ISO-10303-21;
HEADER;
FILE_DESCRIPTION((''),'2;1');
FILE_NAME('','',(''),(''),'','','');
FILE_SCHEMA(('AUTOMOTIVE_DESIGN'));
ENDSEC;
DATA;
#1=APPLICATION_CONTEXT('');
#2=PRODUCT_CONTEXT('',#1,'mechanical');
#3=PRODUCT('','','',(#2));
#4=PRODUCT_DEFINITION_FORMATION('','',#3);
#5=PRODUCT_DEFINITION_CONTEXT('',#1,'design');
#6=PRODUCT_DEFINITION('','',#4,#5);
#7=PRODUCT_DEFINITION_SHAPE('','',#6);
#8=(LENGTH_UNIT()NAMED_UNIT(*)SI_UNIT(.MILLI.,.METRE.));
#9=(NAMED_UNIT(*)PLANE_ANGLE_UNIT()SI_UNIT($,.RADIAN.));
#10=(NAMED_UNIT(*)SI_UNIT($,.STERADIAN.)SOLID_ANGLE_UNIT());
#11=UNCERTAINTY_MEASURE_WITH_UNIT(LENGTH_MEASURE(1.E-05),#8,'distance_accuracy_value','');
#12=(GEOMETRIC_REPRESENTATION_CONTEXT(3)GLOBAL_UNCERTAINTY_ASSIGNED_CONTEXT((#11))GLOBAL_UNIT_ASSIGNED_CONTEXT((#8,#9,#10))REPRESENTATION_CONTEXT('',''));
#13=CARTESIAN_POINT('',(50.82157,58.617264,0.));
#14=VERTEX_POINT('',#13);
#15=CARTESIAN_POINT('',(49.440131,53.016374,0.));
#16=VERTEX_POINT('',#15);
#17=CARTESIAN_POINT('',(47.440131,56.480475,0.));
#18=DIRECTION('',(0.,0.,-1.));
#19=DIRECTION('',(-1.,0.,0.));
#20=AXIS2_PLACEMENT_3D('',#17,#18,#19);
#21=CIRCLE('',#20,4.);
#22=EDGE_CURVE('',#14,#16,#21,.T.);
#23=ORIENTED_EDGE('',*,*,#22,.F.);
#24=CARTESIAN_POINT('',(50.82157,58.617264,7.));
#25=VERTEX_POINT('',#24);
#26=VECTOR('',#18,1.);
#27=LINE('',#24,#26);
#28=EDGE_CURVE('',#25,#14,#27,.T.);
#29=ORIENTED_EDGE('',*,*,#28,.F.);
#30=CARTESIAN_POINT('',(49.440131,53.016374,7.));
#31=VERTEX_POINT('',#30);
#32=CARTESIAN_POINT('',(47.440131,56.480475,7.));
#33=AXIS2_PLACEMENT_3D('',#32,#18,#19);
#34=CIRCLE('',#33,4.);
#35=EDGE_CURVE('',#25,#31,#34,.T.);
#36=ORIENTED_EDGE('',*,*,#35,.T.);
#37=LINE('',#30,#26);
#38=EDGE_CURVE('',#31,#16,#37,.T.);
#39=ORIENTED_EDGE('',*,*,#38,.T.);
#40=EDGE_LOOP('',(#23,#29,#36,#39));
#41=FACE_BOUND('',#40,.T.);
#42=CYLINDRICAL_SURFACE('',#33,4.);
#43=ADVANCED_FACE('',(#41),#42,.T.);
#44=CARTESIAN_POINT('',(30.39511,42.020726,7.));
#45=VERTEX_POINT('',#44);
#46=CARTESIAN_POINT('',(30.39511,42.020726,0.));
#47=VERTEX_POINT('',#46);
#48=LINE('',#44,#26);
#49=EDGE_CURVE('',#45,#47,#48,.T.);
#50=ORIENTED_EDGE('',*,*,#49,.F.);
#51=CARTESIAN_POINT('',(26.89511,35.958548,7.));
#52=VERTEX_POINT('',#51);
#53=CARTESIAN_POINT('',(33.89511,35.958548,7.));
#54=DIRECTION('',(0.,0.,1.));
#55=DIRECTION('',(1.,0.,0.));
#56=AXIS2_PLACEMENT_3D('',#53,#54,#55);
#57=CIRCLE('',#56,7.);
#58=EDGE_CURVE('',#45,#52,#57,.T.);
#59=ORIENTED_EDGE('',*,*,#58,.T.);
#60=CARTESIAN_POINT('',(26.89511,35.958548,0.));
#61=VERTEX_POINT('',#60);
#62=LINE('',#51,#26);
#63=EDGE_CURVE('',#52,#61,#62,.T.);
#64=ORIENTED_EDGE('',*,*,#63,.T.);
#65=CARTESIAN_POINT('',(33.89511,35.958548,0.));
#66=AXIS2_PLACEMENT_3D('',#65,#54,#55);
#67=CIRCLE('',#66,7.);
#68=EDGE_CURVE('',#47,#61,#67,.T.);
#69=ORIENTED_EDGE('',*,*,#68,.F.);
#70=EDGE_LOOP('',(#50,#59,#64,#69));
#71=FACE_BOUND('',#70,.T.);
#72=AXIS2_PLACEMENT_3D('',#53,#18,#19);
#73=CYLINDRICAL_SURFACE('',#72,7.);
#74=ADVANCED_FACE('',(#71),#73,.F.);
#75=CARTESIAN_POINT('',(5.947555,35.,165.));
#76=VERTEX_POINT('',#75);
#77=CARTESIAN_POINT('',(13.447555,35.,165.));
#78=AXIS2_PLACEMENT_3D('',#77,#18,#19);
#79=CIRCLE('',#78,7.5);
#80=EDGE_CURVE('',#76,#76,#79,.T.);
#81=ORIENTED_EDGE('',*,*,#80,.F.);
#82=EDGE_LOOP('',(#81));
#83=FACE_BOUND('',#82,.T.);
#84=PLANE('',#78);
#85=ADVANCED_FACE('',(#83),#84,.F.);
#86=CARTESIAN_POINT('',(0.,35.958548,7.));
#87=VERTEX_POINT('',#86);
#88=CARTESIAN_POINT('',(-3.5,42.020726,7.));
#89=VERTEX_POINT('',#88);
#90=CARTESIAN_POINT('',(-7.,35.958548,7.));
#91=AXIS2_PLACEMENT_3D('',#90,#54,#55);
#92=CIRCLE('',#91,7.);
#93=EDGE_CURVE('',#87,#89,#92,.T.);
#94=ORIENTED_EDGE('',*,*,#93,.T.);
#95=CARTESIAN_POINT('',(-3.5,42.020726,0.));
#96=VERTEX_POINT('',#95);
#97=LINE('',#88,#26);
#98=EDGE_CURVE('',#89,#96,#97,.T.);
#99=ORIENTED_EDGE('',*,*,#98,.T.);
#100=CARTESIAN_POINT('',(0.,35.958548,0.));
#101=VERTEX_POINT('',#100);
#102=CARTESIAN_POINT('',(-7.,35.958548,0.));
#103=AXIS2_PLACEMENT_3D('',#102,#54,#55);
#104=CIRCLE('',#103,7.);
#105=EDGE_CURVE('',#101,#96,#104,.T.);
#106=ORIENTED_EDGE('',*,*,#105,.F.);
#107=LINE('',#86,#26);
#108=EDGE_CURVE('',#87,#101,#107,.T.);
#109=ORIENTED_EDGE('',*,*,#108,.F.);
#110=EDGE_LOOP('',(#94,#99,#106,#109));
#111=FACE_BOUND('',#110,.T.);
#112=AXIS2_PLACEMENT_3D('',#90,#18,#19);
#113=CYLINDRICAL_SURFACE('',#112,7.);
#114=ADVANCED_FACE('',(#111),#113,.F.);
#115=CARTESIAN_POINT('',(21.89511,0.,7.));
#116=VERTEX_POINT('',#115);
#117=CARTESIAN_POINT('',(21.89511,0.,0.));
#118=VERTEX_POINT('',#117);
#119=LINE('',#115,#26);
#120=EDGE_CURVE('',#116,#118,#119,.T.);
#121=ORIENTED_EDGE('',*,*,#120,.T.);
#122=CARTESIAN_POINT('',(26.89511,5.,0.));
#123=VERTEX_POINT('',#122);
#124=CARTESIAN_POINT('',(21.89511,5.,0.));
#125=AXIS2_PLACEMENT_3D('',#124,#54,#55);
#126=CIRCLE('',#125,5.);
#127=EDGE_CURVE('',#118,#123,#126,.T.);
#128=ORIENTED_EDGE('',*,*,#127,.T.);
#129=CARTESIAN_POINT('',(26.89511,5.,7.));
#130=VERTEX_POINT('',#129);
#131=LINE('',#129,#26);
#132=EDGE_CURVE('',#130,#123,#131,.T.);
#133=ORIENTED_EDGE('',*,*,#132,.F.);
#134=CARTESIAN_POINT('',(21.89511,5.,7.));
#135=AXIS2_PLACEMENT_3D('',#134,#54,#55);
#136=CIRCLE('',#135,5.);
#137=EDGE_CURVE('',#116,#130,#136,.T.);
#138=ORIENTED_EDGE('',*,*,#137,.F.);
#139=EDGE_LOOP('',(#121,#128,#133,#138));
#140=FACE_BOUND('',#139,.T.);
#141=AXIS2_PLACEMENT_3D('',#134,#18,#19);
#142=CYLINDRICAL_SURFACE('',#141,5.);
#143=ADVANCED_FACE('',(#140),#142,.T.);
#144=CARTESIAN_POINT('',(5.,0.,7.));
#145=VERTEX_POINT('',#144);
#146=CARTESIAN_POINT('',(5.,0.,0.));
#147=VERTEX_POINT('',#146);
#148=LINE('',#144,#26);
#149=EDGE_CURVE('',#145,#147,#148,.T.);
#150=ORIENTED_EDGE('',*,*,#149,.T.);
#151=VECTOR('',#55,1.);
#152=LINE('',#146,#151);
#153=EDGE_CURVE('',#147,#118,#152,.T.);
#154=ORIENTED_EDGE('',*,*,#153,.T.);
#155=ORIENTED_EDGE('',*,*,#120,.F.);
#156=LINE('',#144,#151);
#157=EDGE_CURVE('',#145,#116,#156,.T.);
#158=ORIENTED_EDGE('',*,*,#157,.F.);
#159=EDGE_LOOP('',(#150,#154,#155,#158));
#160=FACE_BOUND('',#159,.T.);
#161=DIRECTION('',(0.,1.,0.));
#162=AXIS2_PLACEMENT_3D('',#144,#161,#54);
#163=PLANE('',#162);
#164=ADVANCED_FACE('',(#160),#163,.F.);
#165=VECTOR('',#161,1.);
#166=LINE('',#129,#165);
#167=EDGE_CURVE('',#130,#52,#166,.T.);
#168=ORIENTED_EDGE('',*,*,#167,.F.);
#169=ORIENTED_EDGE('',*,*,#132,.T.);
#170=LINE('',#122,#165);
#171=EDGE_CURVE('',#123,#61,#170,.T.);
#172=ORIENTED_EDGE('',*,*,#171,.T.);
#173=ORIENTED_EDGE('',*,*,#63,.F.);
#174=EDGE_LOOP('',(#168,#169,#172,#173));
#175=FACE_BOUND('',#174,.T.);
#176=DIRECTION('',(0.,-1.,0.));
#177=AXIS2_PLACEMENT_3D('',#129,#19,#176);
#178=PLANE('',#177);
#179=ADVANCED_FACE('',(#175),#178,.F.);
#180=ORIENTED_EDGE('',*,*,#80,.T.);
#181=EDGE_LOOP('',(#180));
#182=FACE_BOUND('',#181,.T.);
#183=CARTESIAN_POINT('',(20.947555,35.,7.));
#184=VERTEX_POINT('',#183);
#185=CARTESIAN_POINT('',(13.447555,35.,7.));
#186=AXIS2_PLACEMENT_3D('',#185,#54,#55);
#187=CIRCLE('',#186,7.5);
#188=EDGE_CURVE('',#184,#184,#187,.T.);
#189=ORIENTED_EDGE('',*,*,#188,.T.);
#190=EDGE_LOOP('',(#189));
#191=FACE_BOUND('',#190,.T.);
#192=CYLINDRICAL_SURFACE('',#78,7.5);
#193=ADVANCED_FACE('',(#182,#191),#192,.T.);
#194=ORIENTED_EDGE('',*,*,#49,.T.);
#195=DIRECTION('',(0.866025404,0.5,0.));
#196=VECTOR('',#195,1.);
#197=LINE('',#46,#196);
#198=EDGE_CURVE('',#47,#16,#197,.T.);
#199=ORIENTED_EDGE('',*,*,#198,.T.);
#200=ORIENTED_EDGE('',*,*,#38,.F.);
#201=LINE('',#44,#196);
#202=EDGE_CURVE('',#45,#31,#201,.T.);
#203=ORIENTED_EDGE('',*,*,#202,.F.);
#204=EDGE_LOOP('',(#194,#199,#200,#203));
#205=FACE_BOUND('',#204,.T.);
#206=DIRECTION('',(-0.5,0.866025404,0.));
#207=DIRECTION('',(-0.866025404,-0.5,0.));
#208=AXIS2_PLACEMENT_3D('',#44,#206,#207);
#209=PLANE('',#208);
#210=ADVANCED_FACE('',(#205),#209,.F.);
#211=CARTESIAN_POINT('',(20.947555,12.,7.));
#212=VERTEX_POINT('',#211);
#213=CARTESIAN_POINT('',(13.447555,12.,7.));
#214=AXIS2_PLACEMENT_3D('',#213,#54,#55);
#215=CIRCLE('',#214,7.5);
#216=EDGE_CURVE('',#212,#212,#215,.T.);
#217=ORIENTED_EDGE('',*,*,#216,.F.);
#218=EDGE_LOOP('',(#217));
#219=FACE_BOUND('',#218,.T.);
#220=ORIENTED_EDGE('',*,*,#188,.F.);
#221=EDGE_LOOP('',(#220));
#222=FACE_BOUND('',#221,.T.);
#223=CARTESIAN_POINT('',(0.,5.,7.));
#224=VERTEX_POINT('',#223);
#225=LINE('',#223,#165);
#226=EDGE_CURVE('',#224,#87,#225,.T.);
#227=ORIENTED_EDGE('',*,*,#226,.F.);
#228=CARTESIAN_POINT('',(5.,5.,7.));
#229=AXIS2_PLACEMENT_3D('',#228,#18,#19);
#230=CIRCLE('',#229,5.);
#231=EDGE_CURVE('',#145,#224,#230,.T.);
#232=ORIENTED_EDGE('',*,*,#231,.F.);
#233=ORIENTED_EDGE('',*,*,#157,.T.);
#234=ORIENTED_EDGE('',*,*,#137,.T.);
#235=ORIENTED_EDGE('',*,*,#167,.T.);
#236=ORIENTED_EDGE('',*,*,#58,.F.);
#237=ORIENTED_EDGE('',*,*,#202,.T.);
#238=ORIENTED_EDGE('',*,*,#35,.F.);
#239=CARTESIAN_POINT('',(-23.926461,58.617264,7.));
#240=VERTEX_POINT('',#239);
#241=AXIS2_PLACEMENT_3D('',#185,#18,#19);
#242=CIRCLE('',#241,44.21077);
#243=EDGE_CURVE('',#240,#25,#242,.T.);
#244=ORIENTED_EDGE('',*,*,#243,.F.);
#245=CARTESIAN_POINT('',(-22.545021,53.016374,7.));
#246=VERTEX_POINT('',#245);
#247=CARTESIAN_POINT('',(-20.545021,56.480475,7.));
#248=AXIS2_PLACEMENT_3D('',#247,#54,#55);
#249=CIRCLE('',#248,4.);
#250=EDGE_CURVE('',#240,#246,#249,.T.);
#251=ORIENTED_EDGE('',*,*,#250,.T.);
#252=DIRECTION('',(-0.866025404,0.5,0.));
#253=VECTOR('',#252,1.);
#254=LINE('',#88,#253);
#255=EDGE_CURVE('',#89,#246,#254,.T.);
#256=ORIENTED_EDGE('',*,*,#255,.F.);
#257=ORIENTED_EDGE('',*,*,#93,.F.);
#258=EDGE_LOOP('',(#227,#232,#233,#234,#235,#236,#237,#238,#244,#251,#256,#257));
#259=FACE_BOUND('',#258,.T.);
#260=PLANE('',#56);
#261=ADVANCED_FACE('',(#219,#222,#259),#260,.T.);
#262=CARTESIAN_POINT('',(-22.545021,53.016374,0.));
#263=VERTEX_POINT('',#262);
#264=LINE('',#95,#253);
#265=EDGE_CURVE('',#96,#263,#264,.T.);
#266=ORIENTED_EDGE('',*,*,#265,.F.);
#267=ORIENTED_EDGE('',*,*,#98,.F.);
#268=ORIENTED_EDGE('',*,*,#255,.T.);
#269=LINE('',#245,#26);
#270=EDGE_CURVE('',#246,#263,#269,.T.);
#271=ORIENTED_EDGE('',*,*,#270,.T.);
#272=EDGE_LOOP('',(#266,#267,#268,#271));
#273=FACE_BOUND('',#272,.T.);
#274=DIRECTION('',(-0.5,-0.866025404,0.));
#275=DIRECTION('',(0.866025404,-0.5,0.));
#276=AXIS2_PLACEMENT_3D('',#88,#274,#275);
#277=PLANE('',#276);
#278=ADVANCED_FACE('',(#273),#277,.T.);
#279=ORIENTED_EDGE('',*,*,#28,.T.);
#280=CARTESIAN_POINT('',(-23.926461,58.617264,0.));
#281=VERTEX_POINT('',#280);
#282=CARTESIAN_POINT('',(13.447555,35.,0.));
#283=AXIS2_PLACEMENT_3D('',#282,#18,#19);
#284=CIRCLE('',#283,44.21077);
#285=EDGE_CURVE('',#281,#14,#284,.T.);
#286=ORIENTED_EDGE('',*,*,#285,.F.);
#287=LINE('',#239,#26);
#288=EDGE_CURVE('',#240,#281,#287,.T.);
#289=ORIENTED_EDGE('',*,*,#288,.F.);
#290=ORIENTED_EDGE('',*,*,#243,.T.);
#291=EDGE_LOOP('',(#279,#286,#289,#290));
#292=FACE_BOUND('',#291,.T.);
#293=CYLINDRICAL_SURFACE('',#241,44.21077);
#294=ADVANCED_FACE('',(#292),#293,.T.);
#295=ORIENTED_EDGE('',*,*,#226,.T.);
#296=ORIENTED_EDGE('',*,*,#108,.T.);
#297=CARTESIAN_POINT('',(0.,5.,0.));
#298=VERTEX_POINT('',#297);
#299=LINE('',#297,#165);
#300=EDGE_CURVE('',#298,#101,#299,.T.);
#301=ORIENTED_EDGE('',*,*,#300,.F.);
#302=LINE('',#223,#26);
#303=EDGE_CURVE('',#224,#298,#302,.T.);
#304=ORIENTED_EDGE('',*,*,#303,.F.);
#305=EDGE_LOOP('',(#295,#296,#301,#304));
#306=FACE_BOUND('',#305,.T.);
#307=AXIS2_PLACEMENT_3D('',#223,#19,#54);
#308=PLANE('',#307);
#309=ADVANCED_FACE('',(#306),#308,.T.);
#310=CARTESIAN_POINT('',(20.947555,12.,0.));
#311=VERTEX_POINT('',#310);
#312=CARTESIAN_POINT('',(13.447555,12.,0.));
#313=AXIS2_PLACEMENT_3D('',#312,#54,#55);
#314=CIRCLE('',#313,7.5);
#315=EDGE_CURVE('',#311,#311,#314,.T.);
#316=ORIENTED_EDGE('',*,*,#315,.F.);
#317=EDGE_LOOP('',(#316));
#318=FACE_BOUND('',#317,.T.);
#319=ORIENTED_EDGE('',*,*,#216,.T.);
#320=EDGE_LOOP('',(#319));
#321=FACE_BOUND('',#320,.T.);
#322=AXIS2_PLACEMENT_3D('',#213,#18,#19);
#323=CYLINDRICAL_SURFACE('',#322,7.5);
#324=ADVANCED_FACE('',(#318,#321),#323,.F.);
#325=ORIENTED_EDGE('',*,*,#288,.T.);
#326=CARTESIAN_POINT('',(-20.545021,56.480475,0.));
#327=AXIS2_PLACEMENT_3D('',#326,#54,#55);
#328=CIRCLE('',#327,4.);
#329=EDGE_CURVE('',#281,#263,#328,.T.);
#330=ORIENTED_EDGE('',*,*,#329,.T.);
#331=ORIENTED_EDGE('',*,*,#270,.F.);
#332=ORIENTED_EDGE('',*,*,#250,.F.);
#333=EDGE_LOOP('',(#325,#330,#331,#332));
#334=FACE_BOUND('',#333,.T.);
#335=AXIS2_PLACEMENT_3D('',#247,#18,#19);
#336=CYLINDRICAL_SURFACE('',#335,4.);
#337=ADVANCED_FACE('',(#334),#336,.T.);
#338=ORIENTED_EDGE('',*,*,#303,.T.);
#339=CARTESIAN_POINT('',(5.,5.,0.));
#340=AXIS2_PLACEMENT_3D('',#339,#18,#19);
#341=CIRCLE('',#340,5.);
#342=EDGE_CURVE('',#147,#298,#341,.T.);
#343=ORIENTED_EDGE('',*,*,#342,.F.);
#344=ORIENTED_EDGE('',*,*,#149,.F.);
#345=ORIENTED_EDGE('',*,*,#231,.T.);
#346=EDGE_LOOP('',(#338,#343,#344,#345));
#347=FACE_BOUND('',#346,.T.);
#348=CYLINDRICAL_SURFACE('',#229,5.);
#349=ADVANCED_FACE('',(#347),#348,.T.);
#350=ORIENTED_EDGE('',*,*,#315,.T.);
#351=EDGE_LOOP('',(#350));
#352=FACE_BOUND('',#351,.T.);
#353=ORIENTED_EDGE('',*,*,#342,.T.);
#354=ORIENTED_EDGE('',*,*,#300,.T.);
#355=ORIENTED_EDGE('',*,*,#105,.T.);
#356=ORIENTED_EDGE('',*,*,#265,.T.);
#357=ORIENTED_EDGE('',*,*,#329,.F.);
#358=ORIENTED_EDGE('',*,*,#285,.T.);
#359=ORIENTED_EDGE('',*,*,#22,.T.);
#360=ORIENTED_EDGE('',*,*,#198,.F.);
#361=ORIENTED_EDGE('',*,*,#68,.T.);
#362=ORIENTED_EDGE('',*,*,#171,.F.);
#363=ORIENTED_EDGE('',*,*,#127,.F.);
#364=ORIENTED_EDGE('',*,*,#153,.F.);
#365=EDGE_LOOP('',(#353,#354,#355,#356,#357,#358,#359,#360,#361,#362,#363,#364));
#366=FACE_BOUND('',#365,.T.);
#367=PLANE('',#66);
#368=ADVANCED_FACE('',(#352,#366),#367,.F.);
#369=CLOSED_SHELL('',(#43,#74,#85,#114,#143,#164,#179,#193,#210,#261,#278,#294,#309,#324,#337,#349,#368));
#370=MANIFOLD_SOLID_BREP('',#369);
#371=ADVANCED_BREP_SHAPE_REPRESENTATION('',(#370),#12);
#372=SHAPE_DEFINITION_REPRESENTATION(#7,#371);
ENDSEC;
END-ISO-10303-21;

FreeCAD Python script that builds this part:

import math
import FreeCAD as App
import Part
import Sketcher
from FreeCAD import Vector
Q = App.Units.Quantity

doc = App.newDocument("Part")
params = doc.addObject("Spreadsheet::Sheet", "Params")
for row, (alias, value) in enumerate([
    ("sketch1_diameter", "15 mm"),
    ("sketch1_radius", "5 mm"),
    ("sketch1_radius2", "7 mm"),
    ("sketch1_radius3", "4 mm"),
    ("pad1_length", "7 mm"),
    ("sketch2_diameter", "15 mm"),
    ("pad2_length", "165 mm"),
], start=1):
    params.set(f"A{row}", alias)
    params.set(f"B{row}", "=" + value)
    params.setAlias(f"B{row}", alias)

body = doc.addObject("PartDesign::Body", "Body")

sketch1 = doc.addObject("Sketcher::SketchObject", "Sketch")
body.addObject(sketch1)
sketch1.AttachmentSupport = (doc.XY_Plane, [""])
sketch1.MapMode = "FlatFace"
sketch1.addGeometry(Part.LineSegment(Vector(5, 0, 0), Vector(21.89511, 0, 0)), False)
sketch1.addGeometry(Part.ArcOfCircle(Part.Circle(Vector(21.89511, 5, 0), Vector(0, 0, 1), 5), math.radians(-90), math.radians(0)), False)
sketch1.addGeometry(Part.LineSegment(Vector(26.89511, 5, 0), Vector(26.89511, 35.958548, 0)), False)
sketch1.addGeometry(Part.ArcOfCircle(Part.Circle(Vector(33.89511, 35.958548, 0), Vector(0, 0, 1), 7), math.radians(120), math.radians(180)), False)
sketch1.addGeometry(Part.LineSegment(Vector(30.39511, 42.020726, 0), Vector(49.440131, 53.016374, 0)), False)
sketch1.addGeometry(Part.ArcOfCircle(Part.Circle(Vector(47.440131, 56.480475, 0), Vector(0, 0, 1), 4), math.radians(-60), math.radians(32.289475)), False)
sketch1.addGeometry(Part.ArcOfCircle(Part.Circle(Vector(13.447555, 35, 0), Vector(0, 0, 1), 44.21077), math.radians(32.289475), math.radians(147.710525)), False)
sketch1.addGeometry(Part.ArcOfCircle(Part.Circle(Vector(-20.545021, 56.480475, 0), Vector(0, 0, 1), 4), math.radians(147.710525), math.radians(240)), False)
sketch1.addGeometry(Part.LineSegment(Vector(-22.545021, 53.016374, 0), Vector(-3.5, 42.020726, 0)), False)
sketch1.addGeometry(Part.ArcOfCircle(Part.Circle(Vector(-7, 35.958548, 0), Vector(0, 0, 1), 7), math.radians(0), math.radians(60)), False)
sketch1.addGeometry(Part.LineSegment(Vector(0, 35.958548, 0), Vector(0, 5, 0)), False)
sketch1.addGeometry(Part.ArcOfCircle(Part.Circle(Vector(5, 5, 0), Vector(0, 0, 1), 5), math.radians(180), math.radians(270)), False)
sketch1.addGeometry(Part.Circle(Vector(13.447555, 12, 0), Vector(0, 0, 1), 7.5), False)
sketch1.addGeometry(Part.Circle(Vector(13.447555, 35, 0), Vector(0, 0, 1), 7.5), False)
sketch1.addConstraint(Sketcher.Constraint("Tangent", 0, 2, 1, 1))
sketch1.addConstraint(Sketcher.Constraint("Tangent", 1, 2, 2, 1))
sketch1.addConstraint(Sketcher.Constraint("Tangent", 2, 2, 3, 2))
sketch1.addConstraint(Sketcher.Constraint("Tangent", 3, 1, 4, 1))
sketch1.addConstraint(Sketcher.Constraint("Tangent", 4, 2, 5, 1))
sketch1.addConstraint(Sketcher.Constraint("Tangent", 5, 2, 6, 1))
sketch1.addConstraint(Sketcher.Constraint("Tangent", 6, 2, 7, 1))
sketch1.addConstraint(Sketcher.Constraint("Tangent", 7, 2, 8, 1))
sketch1.addConstraint(Sketcher.Constraint("Tangent", 8, 2, 9, 2))
sketch1.addConstraint(Sketcher.Constraint("Tangent", 9, 1, 10, 1))
sketch1.addConstraint(Sketcher.Constraint("Tangent", 10, 2, 11, 1))
sketch1.addConstraint(Sketcher.Constraint("Tangent", 11, 2, 0, 1))
sketch1.addConstraint(Sketcher.Constraint("Horizontal", 0))
sketch1.addConstraint(Sketcher.Constraint("Vertical", 2))
sketch1.addConstraint(Sketcher.Constraint("Vertical", 10))
sketch1.addConstraint(Sketcher.Constraint("Coincident", 13, 3, 6, 3))
sketch1.addConstraint(Sketcher.Constraint("Equal", 5, 7))
sketch1.addConstraint(Sketcher.Constraint("Equal", 3, 9))
sketch1.addConstraint(Sketcher.Constraint("Equal", 1, 11))
sketch1.addConstraint(Sketcher.Constraint("Equal", 12, 13))
sketch1.addConstraint(Sketcher.Constraint("PointOnObject", 0, 2, -1))
sketch1.addConstraint(Sketcher.Constraint("PointOnObject", 9, 1, -2))
sketch1.addConstraint(Sketcher.Constraint("Horizontal", 5, 3, 7, 3))
sketch1.addConstraint(Sketcher.Constraint("Horizontal", 3, 3, 9, 3))
sketch1.addConstraint(Sketcher.Constraint("Horizontal", 4, 2, 7, 2))
sketch1.addConstraint(Sketcher.Constraint("Vertical", 6, 3, 12, 3))
sketch1.addConstraint(Sketcher.Constraint("Diameter", 12, Q("15 mm")))
sketch1.addConstraint(Sketcher.Constraint("Radius", 1, Q("5 mm")))
sketch1.addConstraint(Sketcher.Constraint("Radius", 3, Q("7 mm")))
sketch1.addConstraint(Sketcher.Constraint("Radius", 5, Q("4 mm")))
sketch1.addConstraint(Sketcher.Constraint("Angle", 4, Q("30 deg")))
sketch1.addConstraint(Sketcher.Constraint("DistanceY", -1, 1, 6, 3, Q("35 mm")))
sketch1.addConstraint(Sketcher.Constraint("DistanceY", -1, 1, 12, 3, Q("12 mm")))
sketch1.addConstraint(Sketcher.Constraint("Radius", 6, Q("44.21077 mm")))
sketch1.addConstraint(Sketcher.Constraint("DistanceX", 0, 1, 0, 2, Q("16.89511 mm")))
sketch1.addConstraint(Sketcher.Constraint("DistanceY", 2, 1, 2, 2, Q("30.958548 mm")))
sketch1.setExpression("Constraints[26]", "Params.sketch1_diameter")
sketch1.setExpression("Constraints[27]", "Params.sketch1_radius")
sketch1.setExpression("Constraints[28]", "Params.sketch1_radius2")
sketch1.setExpression("Constraints[29]", "Params.sketch1_radius3")
pad1 = doc.addObject("PartDesign::Pad", "Pad")
body.addObject(pad1)
pad1.Profile = sketch1
pad1.setExpression("Length", "Params.pad1_length")

sketch2 = doc.addObject("Sketcher::SketchObject", "Sketch001")
body.addObject(sketch2)
sketch2.AttachmentSupport = (doc.XY_Plane, [""])
sketch2.MapMode = "FlatFace"
sketch2.addGeometry(Part.Circle(Vector(13.447555, 35, 0), Vector(0, 0, 1), 7.5), False)
sketch2.addConstraint(Sketcher.Constraint("Diameter", 0, Q("15 mm")))
sketch2.addConstraint(Sketcher.Constraint("DistanceY", -1, 1, 0, 3, Q("35 mm")))
sketch2.addConstraint(Sketcher.Constraint("DistanceX", -1, 1, 0, 3, Q("13.447555 mm")))
sketch2.setExpression("Constraints[0]", "Params.sketch2_diameter")
pad2 = doc.addObject("PartDesign::Pad", "Pad001")
body.addObject(pad2)
pad2.Profile = sketch2
pad2.setExpression("Length", "Params.pad2_length")

doc.recompute()
